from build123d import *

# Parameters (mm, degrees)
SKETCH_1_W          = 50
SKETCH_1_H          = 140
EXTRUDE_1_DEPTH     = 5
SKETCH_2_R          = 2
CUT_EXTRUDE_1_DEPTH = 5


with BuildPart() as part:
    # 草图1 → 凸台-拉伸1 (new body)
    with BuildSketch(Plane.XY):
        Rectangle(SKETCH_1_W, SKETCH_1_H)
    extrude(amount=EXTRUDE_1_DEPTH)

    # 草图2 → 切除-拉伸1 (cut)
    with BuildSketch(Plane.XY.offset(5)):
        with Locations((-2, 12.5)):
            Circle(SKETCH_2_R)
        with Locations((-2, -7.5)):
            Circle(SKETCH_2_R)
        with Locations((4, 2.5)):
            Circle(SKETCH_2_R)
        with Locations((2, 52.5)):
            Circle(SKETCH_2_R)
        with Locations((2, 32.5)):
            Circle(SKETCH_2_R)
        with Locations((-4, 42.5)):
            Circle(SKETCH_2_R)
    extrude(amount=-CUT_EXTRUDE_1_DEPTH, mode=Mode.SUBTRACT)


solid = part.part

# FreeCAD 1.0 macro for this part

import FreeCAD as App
import Part
import Sketcher


def add_polygon(sketch, points):
    """Adds a closed chain of lines whose ends are joined by coincident constraints."""
    first, n = sketch.GeometryCount, len(points)
    for a, b in zip(points, points[1:] + points[:1]):
        sketch.addGeometry(Part.LineSegment(App.Vector(*a, 0), App.Vector(*b, 0)), False)
    for i in range(n):
        sketch.addConstraint(Sketcher.Constraint("Coincident", first + i, 2, first + (i + 1) % n, 1))

doc = App.newDocument("Part")
body = doc.addObject("PartDesign::Body", "Body")

# Sketch on XY plane
sketch1 = body.newObject("Sketcher::SketchObject", "Sketch")
sketch1.AttachmentSupport = (doc.getObject("XY_Plane"), [""])
sketch1.MapMode = "FlatFace"
add_polygon(sketch1, [(-25, 70), (-25, -70), (25, -70), (25, 70)])  # lines 0-3
sketch1.addConstraint(Sketcher.Constraint("Vertical", 0))
sketch1.addConstraint(Sketcher.Constraint("Horizontal", 1))
sketch1.addConstraint(Sketcher.Constraint("Vertical", 2))
sketch1.addConstraint(Sketcher.Constraint("Horizontal", 3))
sketch1.addConstraint(Sketcher.Constraint("Symmetric", 0, 2, 2, 2, -1, 1))
sketch1.addConstraint(Sketcher.Constraint("DistanceX", 1, 1, 1, 2, 50.0))
sketch1.addConstraint(Sketcher.Constraint("DistanceY", 0, 2, 0, 1, 140.0))
pad1 = body.newObject("PartDesign::Pad", "Pad")
pad1.Profile = sketch1
pad1.Length = 5

# Sketch on XY plane
sketch2 = body.newObject("Sketcher::SketchObject", "Sketch001")
sketch2.AttachmentSupport = (doc.getObject("XY_Plane"), [""])
sketch2.MapMode = "FlatFace"
sketch2.AttachmentOffset = App.Placement(App.Vector(0, 0, 5), App.Rotation())
sketch2.addGeometry(Part.Circle(App.Vector(-2, 12.5, 0), App.Vector(0, 0, 1), 2), False)
sketch2.addGeometry(Part.Circle(App.Vector(-2, -7.5, 0), App.Vector(0, 0, 1), 2), False)
sketch2.addGeometry(Part.Circle(App.Vector(4, 2.5, 0), App.Vector(0, 0, 1), 2), False)
sketch2.addGeometry(Part.Circle(App.Vector(2, 52.5, 0), App.Vector(0, 0, 1), 2), False)
sketch2.addGeometry(Part.Circle(App.Vector(2, 32.5, 0), App.Vector(0, 0, 1), 2), False)
sketch2.addGeometry(Part.Circle(App.Vector(-4, 42.5, 0), App.Vector(0, 0, 1), 2), False)
sketch2.addConstraint(Sketcher.Constraint("Equal", 0, 1))
sketch2.addConstraint(Sketcher.Constraint("Equal", 1, 2))
sketch2.addConstraint(Sketcher.Constraint("Equal", 2, 3))
sketch2.addConstraint(Sketcher.Constraint("Equal", 3, 4))
sketch2.addConstraint(Sketcher.Constraint("Equal", 4, 5))
sketch2.addConstraint(Sketcher.Constraint("Vertical", 0, 3, 1, 3))
sketch2.addConstraint(Sketcher.Constraint("Vertical", 3, 3, 4, 3))
sketch2.addConstraint(Sketcher.Constraint("Diameter", 0, 4.0))
sketch2.addConstraint(Sketcher.Constraint("DistanceX", 0, 3, -1, 1, 2.0))
sketch2.addConstraint(Sketcher.Constraint("DistanceX", -1, 1, 2, 3, 4.0))
sketch2.addConstraint(Sketcher.Constraint("DistanceX", -1, 1, 3, 3, 2.0))
sketch2.addConstraint(Sketcher.Constraint("DistanceX", 5, 3, -1, 1, 4.0))
sketch2.addConstraint(Sketcher.Constraint("DistanceY", 1, 3, 0, 3, 20.0))
sketch2.addConstraint(Sketcher.Constraint("DistanceY", 2, 3, 0, 3, 10.0))
sketch2.addConstraint(Sketcher.Constraint("DistanceY", 0, 3, 3, 3, 40.0))
sketch2.addConstraint(Sketcher.Constraint("DistanceY", 4, 3, 3, 3, 20.0))
sketch2.addConstraint(Sketcher.Constraint("DistanceY", 5, 3, 3, 3, 10.0))
sketch2.addConstraint(Sketcher.Constraint("DistanceY", -1, 1, 0, 3, 12.5))
pocket1 = body.newObject("PartDesign::Pocket", "Pocket")
pocket1.Profile = sketch2
pocket1.Length = 5

doc.recompute()
